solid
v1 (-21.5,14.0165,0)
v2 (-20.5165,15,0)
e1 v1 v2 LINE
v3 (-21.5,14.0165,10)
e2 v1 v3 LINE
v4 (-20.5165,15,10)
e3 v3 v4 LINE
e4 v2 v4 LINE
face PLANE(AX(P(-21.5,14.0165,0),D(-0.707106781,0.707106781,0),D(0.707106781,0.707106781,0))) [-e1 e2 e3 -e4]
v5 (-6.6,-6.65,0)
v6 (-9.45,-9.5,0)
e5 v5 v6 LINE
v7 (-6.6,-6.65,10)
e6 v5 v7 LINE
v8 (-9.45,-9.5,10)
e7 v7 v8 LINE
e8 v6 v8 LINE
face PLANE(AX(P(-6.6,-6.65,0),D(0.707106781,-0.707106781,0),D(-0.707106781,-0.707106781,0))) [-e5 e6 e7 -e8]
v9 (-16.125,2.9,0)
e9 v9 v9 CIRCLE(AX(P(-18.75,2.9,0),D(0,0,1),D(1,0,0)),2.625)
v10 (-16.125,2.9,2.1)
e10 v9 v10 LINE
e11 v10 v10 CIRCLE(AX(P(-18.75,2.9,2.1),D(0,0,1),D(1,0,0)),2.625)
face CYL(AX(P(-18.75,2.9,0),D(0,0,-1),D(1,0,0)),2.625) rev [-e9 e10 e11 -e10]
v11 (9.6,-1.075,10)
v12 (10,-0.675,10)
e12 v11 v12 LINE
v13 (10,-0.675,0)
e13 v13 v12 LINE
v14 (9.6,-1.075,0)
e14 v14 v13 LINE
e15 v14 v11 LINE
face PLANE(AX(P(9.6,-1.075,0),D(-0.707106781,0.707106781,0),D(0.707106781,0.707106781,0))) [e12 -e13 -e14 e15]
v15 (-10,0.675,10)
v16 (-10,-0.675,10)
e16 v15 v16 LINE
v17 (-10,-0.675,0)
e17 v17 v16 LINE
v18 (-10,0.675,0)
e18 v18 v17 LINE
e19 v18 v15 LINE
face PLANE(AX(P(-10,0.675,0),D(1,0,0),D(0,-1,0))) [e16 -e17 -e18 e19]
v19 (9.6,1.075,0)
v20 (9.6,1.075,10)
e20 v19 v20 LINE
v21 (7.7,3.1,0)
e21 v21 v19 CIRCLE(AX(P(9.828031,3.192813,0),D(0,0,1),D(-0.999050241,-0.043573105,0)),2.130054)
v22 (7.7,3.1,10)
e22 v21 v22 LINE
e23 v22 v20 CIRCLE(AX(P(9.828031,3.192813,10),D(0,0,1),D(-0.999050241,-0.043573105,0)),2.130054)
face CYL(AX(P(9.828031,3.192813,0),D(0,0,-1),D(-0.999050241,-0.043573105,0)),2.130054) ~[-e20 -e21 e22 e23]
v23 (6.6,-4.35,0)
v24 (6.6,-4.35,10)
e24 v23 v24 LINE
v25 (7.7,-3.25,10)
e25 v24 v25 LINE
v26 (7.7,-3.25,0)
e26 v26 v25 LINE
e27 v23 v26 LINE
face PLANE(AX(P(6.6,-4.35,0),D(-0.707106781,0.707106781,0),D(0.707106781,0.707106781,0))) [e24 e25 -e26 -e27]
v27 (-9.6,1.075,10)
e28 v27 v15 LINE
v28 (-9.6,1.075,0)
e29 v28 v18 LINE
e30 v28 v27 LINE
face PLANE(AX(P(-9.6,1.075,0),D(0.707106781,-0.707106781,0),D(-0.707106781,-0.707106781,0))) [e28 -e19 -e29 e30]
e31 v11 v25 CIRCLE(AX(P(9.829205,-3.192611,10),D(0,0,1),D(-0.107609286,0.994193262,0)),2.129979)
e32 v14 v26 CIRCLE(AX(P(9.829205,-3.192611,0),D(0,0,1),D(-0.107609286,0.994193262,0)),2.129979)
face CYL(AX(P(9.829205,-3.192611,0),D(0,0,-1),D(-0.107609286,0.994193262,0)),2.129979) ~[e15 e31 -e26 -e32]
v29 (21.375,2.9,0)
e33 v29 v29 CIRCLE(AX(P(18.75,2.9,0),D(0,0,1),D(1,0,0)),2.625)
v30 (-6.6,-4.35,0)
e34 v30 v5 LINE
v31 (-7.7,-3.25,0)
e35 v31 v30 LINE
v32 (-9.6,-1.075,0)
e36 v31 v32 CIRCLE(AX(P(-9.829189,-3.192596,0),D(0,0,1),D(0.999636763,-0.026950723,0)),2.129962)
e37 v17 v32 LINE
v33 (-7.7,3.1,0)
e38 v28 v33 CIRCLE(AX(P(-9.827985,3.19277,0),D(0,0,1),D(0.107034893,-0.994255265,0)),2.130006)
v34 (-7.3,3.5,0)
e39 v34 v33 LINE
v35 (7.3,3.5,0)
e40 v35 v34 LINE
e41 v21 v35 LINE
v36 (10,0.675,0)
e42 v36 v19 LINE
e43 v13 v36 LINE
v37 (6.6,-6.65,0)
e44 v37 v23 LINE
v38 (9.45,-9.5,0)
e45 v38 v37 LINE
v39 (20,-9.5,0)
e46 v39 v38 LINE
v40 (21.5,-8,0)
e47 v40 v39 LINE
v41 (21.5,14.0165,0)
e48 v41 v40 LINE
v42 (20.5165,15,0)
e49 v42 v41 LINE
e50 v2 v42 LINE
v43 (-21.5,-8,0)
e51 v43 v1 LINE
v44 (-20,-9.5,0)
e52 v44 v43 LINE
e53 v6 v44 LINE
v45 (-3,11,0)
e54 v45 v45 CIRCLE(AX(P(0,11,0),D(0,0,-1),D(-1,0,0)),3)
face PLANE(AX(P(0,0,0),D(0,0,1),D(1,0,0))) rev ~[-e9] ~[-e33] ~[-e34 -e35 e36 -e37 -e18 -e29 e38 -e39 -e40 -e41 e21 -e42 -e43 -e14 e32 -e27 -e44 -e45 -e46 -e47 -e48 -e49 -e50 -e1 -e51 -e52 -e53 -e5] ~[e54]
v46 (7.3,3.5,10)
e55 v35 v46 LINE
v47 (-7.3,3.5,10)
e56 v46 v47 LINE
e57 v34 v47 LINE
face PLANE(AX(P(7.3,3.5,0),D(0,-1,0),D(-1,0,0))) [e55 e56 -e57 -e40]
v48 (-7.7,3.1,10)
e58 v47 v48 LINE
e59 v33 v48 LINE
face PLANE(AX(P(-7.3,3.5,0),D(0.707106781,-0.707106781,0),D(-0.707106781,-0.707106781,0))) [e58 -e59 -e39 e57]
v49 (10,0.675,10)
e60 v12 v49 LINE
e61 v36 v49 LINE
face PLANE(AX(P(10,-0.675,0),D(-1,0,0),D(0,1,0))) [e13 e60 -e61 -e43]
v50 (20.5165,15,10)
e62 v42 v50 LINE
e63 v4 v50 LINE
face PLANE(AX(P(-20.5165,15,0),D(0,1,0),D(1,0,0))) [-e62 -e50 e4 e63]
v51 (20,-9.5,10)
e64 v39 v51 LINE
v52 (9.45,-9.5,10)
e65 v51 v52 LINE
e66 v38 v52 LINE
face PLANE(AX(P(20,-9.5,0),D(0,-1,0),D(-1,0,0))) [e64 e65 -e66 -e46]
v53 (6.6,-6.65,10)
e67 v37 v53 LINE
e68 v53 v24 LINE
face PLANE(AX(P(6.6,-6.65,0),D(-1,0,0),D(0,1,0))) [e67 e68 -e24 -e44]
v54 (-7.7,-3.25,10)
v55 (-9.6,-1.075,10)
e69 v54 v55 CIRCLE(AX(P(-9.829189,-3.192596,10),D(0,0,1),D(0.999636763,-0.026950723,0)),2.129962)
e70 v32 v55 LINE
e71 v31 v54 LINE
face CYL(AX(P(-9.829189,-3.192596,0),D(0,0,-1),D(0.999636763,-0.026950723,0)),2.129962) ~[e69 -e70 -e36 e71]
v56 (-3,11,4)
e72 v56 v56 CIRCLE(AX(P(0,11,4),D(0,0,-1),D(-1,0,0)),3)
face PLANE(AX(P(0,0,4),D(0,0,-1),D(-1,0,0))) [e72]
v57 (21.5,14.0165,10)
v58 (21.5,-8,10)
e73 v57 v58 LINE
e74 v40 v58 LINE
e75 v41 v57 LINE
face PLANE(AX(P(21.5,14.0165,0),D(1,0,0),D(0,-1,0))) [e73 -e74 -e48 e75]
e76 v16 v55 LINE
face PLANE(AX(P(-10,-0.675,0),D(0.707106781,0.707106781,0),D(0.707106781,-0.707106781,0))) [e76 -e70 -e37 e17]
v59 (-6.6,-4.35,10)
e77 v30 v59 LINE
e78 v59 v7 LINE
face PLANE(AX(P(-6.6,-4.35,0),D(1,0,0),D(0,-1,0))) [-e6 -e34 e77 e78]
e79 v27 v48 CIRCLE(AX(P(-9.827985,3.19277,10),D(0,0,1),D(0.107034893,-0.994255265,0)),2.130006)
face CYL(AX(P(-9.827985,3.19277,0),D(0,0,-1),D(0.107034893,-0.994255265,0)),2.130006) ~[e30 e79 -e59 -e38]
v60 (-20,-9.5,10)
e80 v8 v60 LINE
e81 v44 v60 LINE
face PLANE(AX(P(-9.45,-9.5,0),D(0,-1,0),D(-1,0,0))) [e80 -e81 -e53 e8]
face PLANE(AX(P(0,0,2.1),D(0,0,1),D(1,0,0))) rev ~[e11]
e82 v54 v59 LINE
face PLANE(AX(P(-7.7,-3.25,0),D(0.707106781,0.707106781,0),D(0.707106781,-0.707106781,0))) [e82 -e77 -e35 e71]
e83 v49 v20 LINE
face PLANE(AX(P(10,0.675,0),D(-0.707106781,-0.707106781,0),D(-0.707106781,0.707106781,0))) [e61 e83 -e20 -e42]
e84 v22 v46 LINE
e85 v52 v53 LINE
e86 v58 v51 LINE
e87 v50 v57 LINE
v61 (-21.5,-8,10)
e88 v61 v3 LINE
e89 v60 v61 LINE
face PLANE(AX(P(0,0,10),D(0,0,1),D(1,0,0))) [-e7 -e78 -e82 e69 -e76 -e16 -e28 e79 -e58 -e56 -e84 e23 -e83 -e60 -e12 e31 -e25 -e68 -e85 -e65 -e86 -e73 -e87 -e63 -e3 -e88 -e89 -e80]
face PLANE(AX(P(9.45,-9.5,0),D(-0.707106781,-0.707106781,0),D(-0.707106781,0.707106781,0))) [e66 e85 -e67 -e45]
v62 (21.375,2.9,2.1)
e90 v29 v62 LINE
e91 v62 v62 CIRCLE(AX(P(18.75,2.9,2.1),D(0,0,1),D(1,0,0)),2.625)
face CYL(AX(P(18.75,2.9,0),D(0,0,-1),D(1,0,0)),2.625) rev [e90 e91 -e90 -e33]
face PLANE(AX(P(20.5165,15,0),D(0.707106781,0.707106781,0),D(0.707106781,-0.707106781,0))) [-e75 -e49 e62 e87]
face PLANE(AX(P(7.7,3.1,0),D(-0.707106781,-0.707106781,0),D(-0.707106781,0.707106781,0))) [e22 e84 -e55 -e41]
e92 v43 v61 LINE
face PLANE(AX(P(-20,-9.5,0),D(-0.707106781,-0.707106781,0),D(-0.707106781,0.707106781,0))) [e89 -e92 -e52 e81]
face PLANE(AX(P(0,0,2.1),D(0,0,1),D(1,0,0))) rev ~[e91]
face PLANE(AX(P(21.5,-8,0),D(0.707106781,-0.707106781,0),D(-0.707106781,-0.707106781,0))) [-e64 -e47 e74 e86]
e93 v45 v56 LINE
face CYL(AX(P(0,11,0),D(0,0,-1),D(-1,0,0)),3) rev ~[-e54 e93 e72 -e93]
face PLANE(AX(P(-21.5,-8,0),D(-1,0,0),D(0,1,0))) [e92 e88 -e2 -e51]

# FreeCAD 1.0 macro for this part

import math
import FreeCAD as App
import Part
import Sketcher
from FreeCAD import Vector

doc = App.newDocument("Part")
params = doc.addObject("Spreadsheet::Sheet", "Params")
for row, (alias, value) in enumerate([
    ("sketch1_radius", "2.13 mm"),
    ("sketch1_width", "14.6 mm"),
    ("sketch1_height", "2.3 mm"),
    ("sketch1_width2", "10.55 mm"),
    ("sketch1_height2", "1.35 mm"),
    ("pad1_length", "10 mm"),
    ("sketch2_diameter", "5.25 mm"),
    ("pocket1_length", "2.1 mm"),
    ("sketch3_diameter", "6 mm"),
    ("pocket2_length", "4 mm"),
], start=1):
    params.set(f"A{row}", alias)
    params.set(f"B{row}", "=" + value)
    params.setAlias(f"B{row}", alias)

body = doc.addObject("PartDesign::Body", "Body")

# Sketch on XY plane
sketch1 = body.newObject("Sketcher::SketchObject", "Sketch")
sketch1.AttachmentSupport = (doc.getObject("XY_Plane"), [""])
sketch1.MapMode = "FlatFace"
sketch1.addGeometry([
    Part.LineSegment(Vector(21.5, 14.0165, 0), Vector(20.5165, 15, 0)),  # 0
    Part.LineSegment(Vector(20.5165, 15, 0), Vector(-20.5165, 15, 0)),  # 1
    Part.LineSegment(Vector(-20.5165, 15, 0), Vector(-21.5, 14.0165, 0)),  # 2
    Part.LineSegment(Vector(-21.5, 14.0165, 0), Vector(-21.5, -8, 0)),  # 3
    Part.LineSegment(Vector(-21.5, -8, 0), Vector(-20, -9.5, 0)),  # 4
    Part.LineSegment(Vector(-20, -9.5, 0), Vector(-9.45, -9.5, 0)),  # 5
    Part.LineSegment(Vector(-9.45, -9.5, 0), Vector(-6.6, -6.65, 0)),  # 6
    Part.LineSegment(Vector(-6.6, -6.65, 0), Vector(-6.6, -4.35, 0)),  # 7
    Part.LineSegment(Vector(-6.6, -4.35, 0), Vector(-7.7, -3.25, 0)),  # 8
    Part.ArcOfCircle(Part.Circle(Vector(-9.8292, -3.1926, 0), Vector(0, 0, 1), 2.129974), math.radians(-1.544233), math.radians(83.822597)),  # 9
    Part.LineSegment(Vector(-9.6, -1.075, 0), Vector(-10, -0.675, 0)),  # 10
    Part.LineSegment(Vector(-10, -0.675, 0), Vector(-10, 0.675, 0)),  # 11
    Part.LineSegment(Vector(-10, 0.675, 0), Vector(-9.6, 1.075, 0)),  # 12
    Part.ArcOfCircle(Part.Circle(Vector(-9.828, 3.1928, 0), Vector(0, 0, 1), 2.130038), math.radians(-83.855267), math.radians(-2.497031)),  # 13
    Part.LineSegment(Vector(-7.7, 3.1, 0), Vector(-7.3, 3.5, 0)),  # 14
    Part.LineSegment(Vector(-7.3, 3.5, 0), Vector(7.3, 3.5, 0)),  # 15
    Part.LineSegment(Vector(7.3, 3.5, 0), Vector(7.7, 3.1, 0)),  # 16
    Part.ArcOfCircle(Part.Circle(Vector(9.828, 3.1928, 0), Vector(0, 0, 1), 2.130022), math.radians(-177.502969), math.radians(-96.144733)),  # 17
    Part.LineSegment(Vector(9.6, 1.075, 0), Vector(10, 0.675, 0)),  # 18
    Part.LineSegment(Vector(10, 0.675, 0), Vector(10, -0.675, 0)),  # 19
    Part.LineSegment(Vector(10, -0.675, 0), Vector(9.6, -1.075, 0)),  # 20
    Part.ArcOfCircle(Part.Circle(Vector(9.8292, -3.1926, 0), Vector(0, 0, 1), 2.129968), math.radians(96.177403), math.radians(181.544233)),  # 21
    Part.LineSegment(Vector(7.7, -3.25, 0), Vector(6.6, -4.35, 0)),  # 22
    Part.LineSegment(Vector(6.6, -4.35, 0), Vector(6.6, -6.65, 0)),  # 23
    Part.LineSegment(Vector(6.6, -6.65, 0), Vector(9.45, -9.5, 0)),  # 24
    Part.LineSegment(Vector(9.45, -9.5, 0), Vector(20, -9.5, 0)),  # 25
    Part.LineSegment(Vector(20, -9.5, 0), Vector(21.5, -8, 0)),  # 26
    Part.LineSegment(Vector(21.5, -8, 0), Vector(21.5, 14.0165, 0)),  # 27
], False)
sketch1.addConstraint([
    Sketcher.Constraint("Coincident", 0, 2, 1, 1),
    Sketcher.Constraint("Coincident", 1, 2, 2, 1),
    Sketcher.Constraint("Coincident", 2, 2, 3, 1),
    Sketcher.Constraint("Coincident", 3, 2, 4, 1),
    Sketcher.Constraint("Coincident", 4, 2, 5, 1),
    Sketcher.Constraint("Coincident", 5, 2, 6, 1),
    Sketcher.Constraint("Coincident", 6, 2, 7, 1),
    Sketcher.Constraint("Coincident", 7, 2, 8, 1),
    Sketcher.Constraint("Coincident", 8, 2, 9, 1),
    Sketcher.Constraint("Coincident", 9, 2, 10, 1),
    Sketcher.Constraint("Coincident", 10, 2, 11, 1),
    Sketcher.Constraint("Coincident", 11, 2, 12, 1),
    Sketcher.Constraint("Coincident", 12, 2, 13, 1),
    Sketcher.Constraint("Coincident", 13, 2, 14, 1),
    Sketcher.Constraint("Coincident", 14, 2, 15, 1),
    Sketcher.Constraint("Coincident", 15, 2, 16, 1),
    Sketcher.Constraint("Coincident", 16, 2, 17, 1),
    Sketcher.Constraint("Coincident", 17, 2, 18, 1),
    Sketcher.Constraint("Coincident", 18, 2, 19, 1),
    Sketcher.Constraint("Coincident", 19, 2, 20, 1),
    Sketcher.Constraint("Coincident", 20, 2, 21, 1),
    Sketcher.Constraint("Coincident", 21, 2, 22, 1),
    Sketcher.Constraint("Coincident", 22, 2, 23, 1),
    Sketcher.Constraint("Coincident", 23, 2, 24, 1),
    Sketcher.Constraint("Coincident", 24, 2, 25, 1),
    Sketcher.Constraint("Coincident", 25, 2, 26, 1),
    Sketcher.Constraint("Coincident", 26, 2, 27, 1),
    Sketcher.Constraint("Coincident", 27, 2, 0, 1),
    Sketcher.Constraint("Horizontal", 1),
    Sketcher.Constraint("Vertical", 3),
    Sketcher.Constraint("Horizontal", 5),
    Sketcher.Constraint("Vertical", 7),
    Sketcher.Constraint("Vertical", 11),
    Sketcher.Constraint("Horizontal", 15),
    Sketcher.Constraint("Vertical", 19),
    Sketcher.Constraint("Vertical", 23),
    Sketcher.Constraint("Horizontal", 25),
    Sketcher.Constraint("Vertical", 27),
    Sketcher.Constraint("Equal", 9, 13),
    Sketcher.Constraint("Equal", 13, 17),
    Sketcher.Constraint("Equal", 17, 21),
    Sketcher.Constraint("Symmetric", 9, 2, 17, 2, -1, 1),
    Sketcher.Constraint("Symmetric", 10, 2, 18, 2, -1, 1),
    Sketcher.Constraint("Symmetric", 12, 2, 20, 2, -1, 1),
    Sketcher.Constraint("Symmetric", 13, 3, 17, 3, -2),
    Sketcher.Constraint("Symmetric", 8, 2, 21, 2, -2),
    Sketcher.Constraint("Symmetric", 7, 2, 22, 2, -2),
    Sketcher.Constraint("Symmetric", 5, 2, 24, 2, -2),
    Sketcher.Constraint("Symmetric", 3, 2, 26, 2, -2),
    Sketcher.Constraint("Perpendicular", 0, 2),
    Sketcher.Constraint("Perpendicular", 2, 4),
    Sketcher.Constraint("Perpendicular", 4, 6),
    Sketcher.Constraint("Perpendicular", 6, 8),
    Sketcher.Constraint("Parallel", 8, 10),
    Sketcher.Constraint("Perpendicular", 10, 12),
    Sketcher.Constraint("Parallel", 12, 14),
    Sketcher.Constraint("Perpendicular", 14, 16),
    Sketcher.Constraint("Perpendicular", 18, 20),
    Sketcher.Constraint("Parallel", 20, 22),
    Sketcher.Constraint("Perpendicular", 22, 24),
    Sketcher.Constraint("Perpendicular", 24, 26),
    Sketcher.Constraint("Horizontal", 13, 2, 16, 2),
    Sketcher.Constraint("Horizontal", 12, 2, 17, 2),
    Sketcher.Constraint("Horizontal", 2, 2, 27, 2),
    Sketcher.Constraint("Vertical", 8, 2, 13, 2),
    Sketcher.Constraint("Equal", 12, 14),
    Sketcher.Constraint("Radius", 9, 2.13),
    Sketcher.Constraint("DistanceX", 15, 1, 15, 2, 14.6),
    Sketcher.Constraint("DistanceY", 7, 1, 7, 2, 2.3),
    Sketcher.Constraint("DistanceY", -1, 1, 0, 2, 15.0),
    Sketcher.Constraint("DistanceY", 3, 2, -1, 1, 8.0),
    Sketcher.Constraint("DistanceX", 4, 2, -1, 1, 20.0),
    Sketcher.Constraint("DistanceX", 10, 2, -1, 1, 10.0),
    Sketcher.Constraint("DistanceX", 9, 2, 7, 2, 3.0),
    Sketcher.Constraint("DistanceX", 13, 2, 15, 2, 15.0),
    Sketcher.Constraint("DistanceX", 5, 1, 5, 2, 10.55),
    Sketcher.Constraint("DistanceY", 11, 1, 11, 2, 1.35),
    Sketcher.Constraint("DistanceX", 2, 2, -1, 1, 21.5),
    Sketcher.Constraint("DistanceY", -1, 1, 13, 2, 3.1),
    Sketcher.Constraint("DistanceX", 1, 2, 1, 1, 41.033),
])
sketch1.setExpression("Constraints[66]", "Params.sketch1_radius")
sketch1.setExpression("Constraints[67]", "Params.sketch1_width")
sketch1.setExpression("Constraints[68]", "Params.sketch1_height")
sketch1.setExpression("Constraints[75]", "Params.sketch1_width2")
sketch1.setExpression("Constraints[76]", "Params.sketch1_height2")
pad1 = body.newObject("PartDesign::Pad", "Pad")
pad1.Profile = sketch1
pad1.setExpression("Length", "Params.pad1_length")

# Sketch on XY plane
sketch2 = body.newObject("Sketcher::SketchObject", "Sketch001")
sketch2.AttachmentSupport = (doc.getObject("XY_Plane"), [""])
sketch2.MapMode = "FlatFace"
sketch2.addGeometry([
    Part.Circle(Vector(-18.75, 2.9, 0), Vector(0, 0, 1), 2.625),
    Part.Circle(Vector(18.75, 2.9, 0), Vector(0, 0, 1), 2.625),
], False)
sketch2.addConstraint([
    Sketcher.Constraint("Equal", 0, 1),
    Sketcher.Constraint("Symmetric", 0, 3, 1, 3, -2),
    Sketcher.Constraint("Diameter", 0, 5.25),
    Sketcher.Constraint("DistanceY", -1, 1, 0, 3, 2.9),
    Sketcher.Constraint("DistanceX", 0, 3, 1, 3, 37.5),
])
sketch2.setExpression("Constraints[2]", "Params.sketch2_diameter")
pocket1 = body.newObject("PartDesign::Pocket", "Pocket")
pocket1.Profile = sketch2
pocket1.setExpression("Length", "Params.pocket1_length")
pocket1.Reversed = True

# Sketch on XY plane
sketch3 = body.newObject("Sketcher::SketchObject", "Sketch002")
sketch3.AttachmentSupport = (doc.getObject("XY_Plane"), [""])
sketch3.MapMode = "FlatFace"
sketch3.addGeometry(Part.Circle(Vector(0, 11, 0), Vector(0, 0, 1), 3), False)
sketch3.addConstraint([
    Sketcher.Constraint("PointOnObject", 0, 3, -2),
    Sketcher.Constraint("Diameter", 0, 6.0),
    Sketcher.Constraint("DistanceY", -1, 1, 0, 3, 11.0),
])
sketch3.setExpression("Constraints[1]", "Params.sketch3_diameter")
pocket2 = body.newObject("PartDesign::Pocket", "Pocket001")
pocket2.Profile = sketch3
pocket2.setExpression("Length", "Params.pocket2_length")
pocket2.Reversed = True

doc.recompute()
